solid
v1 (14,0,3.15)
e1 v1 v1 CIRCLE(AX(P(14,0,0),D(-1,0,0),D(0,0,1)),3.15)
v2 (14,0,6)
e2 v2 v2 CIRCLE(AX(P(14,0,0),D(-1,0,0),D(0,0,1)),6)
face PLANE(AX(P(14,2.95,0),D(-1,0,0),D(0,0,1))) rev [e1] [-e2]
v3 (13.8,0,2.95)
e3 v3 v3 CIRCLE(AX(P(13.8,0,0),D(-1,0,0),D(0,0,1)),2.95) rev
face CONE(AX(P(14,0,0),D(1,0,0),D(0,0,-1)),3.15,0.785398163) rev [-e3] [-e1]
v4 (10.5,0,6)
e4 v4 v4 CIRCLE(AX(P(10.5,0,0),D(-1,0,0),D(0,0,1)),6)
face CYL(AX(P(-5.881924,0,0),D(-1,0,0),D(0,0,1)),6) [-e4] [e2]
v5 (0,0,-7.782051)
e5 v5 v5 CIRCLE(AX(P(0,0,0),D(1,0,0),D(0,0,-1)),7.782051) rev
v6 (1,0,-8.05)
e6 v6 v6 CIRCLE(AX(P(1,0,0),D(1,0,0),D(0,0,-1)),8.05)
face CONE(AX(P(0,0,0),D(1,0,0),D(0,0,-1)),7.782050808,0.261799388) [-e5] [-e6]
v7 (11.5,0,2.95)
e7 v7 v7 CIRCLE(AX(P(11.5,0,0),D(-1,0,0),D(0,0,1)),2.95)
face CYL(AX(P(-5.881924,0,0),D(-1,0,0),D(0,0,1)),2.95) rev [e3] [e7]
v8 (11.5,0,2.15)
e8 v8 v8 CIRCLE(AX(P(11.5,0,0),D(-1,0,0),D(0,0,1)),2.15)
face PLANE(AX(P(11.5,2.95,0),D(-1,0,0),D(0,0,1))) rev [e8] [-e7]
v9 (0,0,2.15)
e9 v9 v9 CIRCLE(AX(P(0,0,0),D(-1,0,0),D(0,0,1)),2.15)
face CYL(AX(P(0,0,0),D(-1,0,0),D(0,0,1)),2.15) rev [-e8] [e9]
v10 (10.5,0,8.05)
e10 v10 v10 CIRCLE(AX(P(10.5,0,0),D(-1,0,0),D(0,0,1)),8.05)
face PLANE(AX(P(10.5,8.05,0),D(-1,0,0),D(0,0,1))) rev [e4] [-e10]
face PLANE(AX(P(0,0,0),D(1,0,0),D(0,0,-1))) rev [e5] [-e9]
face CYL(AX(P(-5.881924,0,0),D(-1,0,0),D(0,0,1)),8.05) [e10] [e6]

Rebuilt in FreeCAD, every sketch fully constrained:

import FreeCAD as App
import Part
import Sketcher

V = App.Vector
Q = App.Units.Quantity


def edges_at(feature, points):
    """Names of the edges that pass closest to the given points."""
    edges = feature.Shape.Edges
    near = lambda p: min(range(len(edges)), key=lambda i: edges[i].distToShape(Part.Vertex(*p))[0])
    return sorted({f"Edge{near(p) + 1}" for p in points})


def add_polygon(sketch, points):
    """Adds a closed chain of lines whose ends are joined by coincident constraints."""
    first, n = sketch.GeometryCount, len(points)
    for a, b in zip(points, points[1:] + points[:1]):
        sketch.addGeometry(Part.LineSegment(App.Vector(*a, 0), App.Vector(*b, 0)), False)
    for i in range(n):
        sketch.addConstraint(Sketcher.Constraint("Coincident", first + i, 2, first + (i + 1) % n, 1))

doc = App.newDocument("Part")
body = doc.addObject("PartDesign::Body", "Body")

sketch1 = body.newObject("Sketcher::SketchObject", "Sketch")
sketch1.AttachmentSupport = (doc.getObject("XY_Plane"), [""])
sketch1.MapMode = "FlatFace"
add_polygon(sketch1, [(11.5, 3), (14, 3), (14, 6), (10.5, 6), (10.5, 8.1), (0, 8.1), (0, 0), (11.5, 0)])
sketch1.addConstraint([
    Sketcher.Constraint("Horizontal", 0),
    Sketcher.Constraint("Vertical", 1),
    Sketcher.Constraint("Horizontal", 2),
    Sketcher.Constraint("Vertical", 3),
    Sketcher.Constraint("Horizontal", 4),
    Sketcher.Constraint("Vertical", 5),
    Sketcher.Constraint("Horizontal", 6),
    Sketcher.Constraint("Vertical", 7),
    Sketcher.Constraint("Coincident", 5, 2, -1, 1),
    Sketcher.Constraint("DistanceX", 0, 1, 0, 2, Q("2.5 mm")),
    Sketcher.Constraint("DistanceX", 2, 2, 2, 1, Q("3.5 mm")),
    Sketcher.Constraint("DistanceX", 4, 2, 4, 1, Q("10.5 mm")),
    Sketcher.Constraint("DistanceY", -1, 1, 1, 2, Q("6 mm")),
    Sketcher.Constraint("DistanceY", 1, 1, 1, 2, Q("3.05 mm")),
    Sketcher.Constraint("DistanceY", 3, 1, 3, 2, Q("2.05 mm")),
])
revolution = body.newObject("PartDesign::Revolution", "Revolution")
revolution.Profile = sketch1
revolution.ReferenceAxis = (sketch1, ["H_Axis"])
revolution.Angle = 360
doc.recompute()

chamfer = body.newObject("PartDesign::Chamfer", "Chamfer")
chamfer.Base = (revolution, edges_at(revolution, [(0, 0, -8.05)]))
chamfer.ChamferType = "Two distances"
chamfer.Size = 1
chamfer.Size2 = 0.267949
doc.recompute()

chamfer2 = body.newObject("PartDesign::Chamfer", "Chamfer001")
chamfer2.Base = (chamfer, edges_at(chamfer, [(14, 0, -2.95)]))
chamfer2.Size = 0.2

sketch2 = body.newObject("Sketcher::SketchObject", "Sketch001")
sketch2.AttachmentSupport = (doc.getObject("YZ_Plane"), [""])
sketch2.MapMode = "FlatFace"
sketch2.addGeometry(Part.Circle(V(0, 0, 0), V(0, 0, 1), 2.1), False)
sketch2.addConstraint([
    Sketcher.Constraint("Coincident", 0, 3, -1, 1),
    Sketcher.Constraint("Diameter", 0, Q("4.3 mm")),
])
doc.recompute()
hole = body.newObject("PartDesign::Hole", "Hole")
hole.Profile = sketch2
hole.ThreadType = "None"
hole.Diameter = 4.3
hole.DepthType = "ThroughAll"
hole.Reversed = True

doc.recompute()
